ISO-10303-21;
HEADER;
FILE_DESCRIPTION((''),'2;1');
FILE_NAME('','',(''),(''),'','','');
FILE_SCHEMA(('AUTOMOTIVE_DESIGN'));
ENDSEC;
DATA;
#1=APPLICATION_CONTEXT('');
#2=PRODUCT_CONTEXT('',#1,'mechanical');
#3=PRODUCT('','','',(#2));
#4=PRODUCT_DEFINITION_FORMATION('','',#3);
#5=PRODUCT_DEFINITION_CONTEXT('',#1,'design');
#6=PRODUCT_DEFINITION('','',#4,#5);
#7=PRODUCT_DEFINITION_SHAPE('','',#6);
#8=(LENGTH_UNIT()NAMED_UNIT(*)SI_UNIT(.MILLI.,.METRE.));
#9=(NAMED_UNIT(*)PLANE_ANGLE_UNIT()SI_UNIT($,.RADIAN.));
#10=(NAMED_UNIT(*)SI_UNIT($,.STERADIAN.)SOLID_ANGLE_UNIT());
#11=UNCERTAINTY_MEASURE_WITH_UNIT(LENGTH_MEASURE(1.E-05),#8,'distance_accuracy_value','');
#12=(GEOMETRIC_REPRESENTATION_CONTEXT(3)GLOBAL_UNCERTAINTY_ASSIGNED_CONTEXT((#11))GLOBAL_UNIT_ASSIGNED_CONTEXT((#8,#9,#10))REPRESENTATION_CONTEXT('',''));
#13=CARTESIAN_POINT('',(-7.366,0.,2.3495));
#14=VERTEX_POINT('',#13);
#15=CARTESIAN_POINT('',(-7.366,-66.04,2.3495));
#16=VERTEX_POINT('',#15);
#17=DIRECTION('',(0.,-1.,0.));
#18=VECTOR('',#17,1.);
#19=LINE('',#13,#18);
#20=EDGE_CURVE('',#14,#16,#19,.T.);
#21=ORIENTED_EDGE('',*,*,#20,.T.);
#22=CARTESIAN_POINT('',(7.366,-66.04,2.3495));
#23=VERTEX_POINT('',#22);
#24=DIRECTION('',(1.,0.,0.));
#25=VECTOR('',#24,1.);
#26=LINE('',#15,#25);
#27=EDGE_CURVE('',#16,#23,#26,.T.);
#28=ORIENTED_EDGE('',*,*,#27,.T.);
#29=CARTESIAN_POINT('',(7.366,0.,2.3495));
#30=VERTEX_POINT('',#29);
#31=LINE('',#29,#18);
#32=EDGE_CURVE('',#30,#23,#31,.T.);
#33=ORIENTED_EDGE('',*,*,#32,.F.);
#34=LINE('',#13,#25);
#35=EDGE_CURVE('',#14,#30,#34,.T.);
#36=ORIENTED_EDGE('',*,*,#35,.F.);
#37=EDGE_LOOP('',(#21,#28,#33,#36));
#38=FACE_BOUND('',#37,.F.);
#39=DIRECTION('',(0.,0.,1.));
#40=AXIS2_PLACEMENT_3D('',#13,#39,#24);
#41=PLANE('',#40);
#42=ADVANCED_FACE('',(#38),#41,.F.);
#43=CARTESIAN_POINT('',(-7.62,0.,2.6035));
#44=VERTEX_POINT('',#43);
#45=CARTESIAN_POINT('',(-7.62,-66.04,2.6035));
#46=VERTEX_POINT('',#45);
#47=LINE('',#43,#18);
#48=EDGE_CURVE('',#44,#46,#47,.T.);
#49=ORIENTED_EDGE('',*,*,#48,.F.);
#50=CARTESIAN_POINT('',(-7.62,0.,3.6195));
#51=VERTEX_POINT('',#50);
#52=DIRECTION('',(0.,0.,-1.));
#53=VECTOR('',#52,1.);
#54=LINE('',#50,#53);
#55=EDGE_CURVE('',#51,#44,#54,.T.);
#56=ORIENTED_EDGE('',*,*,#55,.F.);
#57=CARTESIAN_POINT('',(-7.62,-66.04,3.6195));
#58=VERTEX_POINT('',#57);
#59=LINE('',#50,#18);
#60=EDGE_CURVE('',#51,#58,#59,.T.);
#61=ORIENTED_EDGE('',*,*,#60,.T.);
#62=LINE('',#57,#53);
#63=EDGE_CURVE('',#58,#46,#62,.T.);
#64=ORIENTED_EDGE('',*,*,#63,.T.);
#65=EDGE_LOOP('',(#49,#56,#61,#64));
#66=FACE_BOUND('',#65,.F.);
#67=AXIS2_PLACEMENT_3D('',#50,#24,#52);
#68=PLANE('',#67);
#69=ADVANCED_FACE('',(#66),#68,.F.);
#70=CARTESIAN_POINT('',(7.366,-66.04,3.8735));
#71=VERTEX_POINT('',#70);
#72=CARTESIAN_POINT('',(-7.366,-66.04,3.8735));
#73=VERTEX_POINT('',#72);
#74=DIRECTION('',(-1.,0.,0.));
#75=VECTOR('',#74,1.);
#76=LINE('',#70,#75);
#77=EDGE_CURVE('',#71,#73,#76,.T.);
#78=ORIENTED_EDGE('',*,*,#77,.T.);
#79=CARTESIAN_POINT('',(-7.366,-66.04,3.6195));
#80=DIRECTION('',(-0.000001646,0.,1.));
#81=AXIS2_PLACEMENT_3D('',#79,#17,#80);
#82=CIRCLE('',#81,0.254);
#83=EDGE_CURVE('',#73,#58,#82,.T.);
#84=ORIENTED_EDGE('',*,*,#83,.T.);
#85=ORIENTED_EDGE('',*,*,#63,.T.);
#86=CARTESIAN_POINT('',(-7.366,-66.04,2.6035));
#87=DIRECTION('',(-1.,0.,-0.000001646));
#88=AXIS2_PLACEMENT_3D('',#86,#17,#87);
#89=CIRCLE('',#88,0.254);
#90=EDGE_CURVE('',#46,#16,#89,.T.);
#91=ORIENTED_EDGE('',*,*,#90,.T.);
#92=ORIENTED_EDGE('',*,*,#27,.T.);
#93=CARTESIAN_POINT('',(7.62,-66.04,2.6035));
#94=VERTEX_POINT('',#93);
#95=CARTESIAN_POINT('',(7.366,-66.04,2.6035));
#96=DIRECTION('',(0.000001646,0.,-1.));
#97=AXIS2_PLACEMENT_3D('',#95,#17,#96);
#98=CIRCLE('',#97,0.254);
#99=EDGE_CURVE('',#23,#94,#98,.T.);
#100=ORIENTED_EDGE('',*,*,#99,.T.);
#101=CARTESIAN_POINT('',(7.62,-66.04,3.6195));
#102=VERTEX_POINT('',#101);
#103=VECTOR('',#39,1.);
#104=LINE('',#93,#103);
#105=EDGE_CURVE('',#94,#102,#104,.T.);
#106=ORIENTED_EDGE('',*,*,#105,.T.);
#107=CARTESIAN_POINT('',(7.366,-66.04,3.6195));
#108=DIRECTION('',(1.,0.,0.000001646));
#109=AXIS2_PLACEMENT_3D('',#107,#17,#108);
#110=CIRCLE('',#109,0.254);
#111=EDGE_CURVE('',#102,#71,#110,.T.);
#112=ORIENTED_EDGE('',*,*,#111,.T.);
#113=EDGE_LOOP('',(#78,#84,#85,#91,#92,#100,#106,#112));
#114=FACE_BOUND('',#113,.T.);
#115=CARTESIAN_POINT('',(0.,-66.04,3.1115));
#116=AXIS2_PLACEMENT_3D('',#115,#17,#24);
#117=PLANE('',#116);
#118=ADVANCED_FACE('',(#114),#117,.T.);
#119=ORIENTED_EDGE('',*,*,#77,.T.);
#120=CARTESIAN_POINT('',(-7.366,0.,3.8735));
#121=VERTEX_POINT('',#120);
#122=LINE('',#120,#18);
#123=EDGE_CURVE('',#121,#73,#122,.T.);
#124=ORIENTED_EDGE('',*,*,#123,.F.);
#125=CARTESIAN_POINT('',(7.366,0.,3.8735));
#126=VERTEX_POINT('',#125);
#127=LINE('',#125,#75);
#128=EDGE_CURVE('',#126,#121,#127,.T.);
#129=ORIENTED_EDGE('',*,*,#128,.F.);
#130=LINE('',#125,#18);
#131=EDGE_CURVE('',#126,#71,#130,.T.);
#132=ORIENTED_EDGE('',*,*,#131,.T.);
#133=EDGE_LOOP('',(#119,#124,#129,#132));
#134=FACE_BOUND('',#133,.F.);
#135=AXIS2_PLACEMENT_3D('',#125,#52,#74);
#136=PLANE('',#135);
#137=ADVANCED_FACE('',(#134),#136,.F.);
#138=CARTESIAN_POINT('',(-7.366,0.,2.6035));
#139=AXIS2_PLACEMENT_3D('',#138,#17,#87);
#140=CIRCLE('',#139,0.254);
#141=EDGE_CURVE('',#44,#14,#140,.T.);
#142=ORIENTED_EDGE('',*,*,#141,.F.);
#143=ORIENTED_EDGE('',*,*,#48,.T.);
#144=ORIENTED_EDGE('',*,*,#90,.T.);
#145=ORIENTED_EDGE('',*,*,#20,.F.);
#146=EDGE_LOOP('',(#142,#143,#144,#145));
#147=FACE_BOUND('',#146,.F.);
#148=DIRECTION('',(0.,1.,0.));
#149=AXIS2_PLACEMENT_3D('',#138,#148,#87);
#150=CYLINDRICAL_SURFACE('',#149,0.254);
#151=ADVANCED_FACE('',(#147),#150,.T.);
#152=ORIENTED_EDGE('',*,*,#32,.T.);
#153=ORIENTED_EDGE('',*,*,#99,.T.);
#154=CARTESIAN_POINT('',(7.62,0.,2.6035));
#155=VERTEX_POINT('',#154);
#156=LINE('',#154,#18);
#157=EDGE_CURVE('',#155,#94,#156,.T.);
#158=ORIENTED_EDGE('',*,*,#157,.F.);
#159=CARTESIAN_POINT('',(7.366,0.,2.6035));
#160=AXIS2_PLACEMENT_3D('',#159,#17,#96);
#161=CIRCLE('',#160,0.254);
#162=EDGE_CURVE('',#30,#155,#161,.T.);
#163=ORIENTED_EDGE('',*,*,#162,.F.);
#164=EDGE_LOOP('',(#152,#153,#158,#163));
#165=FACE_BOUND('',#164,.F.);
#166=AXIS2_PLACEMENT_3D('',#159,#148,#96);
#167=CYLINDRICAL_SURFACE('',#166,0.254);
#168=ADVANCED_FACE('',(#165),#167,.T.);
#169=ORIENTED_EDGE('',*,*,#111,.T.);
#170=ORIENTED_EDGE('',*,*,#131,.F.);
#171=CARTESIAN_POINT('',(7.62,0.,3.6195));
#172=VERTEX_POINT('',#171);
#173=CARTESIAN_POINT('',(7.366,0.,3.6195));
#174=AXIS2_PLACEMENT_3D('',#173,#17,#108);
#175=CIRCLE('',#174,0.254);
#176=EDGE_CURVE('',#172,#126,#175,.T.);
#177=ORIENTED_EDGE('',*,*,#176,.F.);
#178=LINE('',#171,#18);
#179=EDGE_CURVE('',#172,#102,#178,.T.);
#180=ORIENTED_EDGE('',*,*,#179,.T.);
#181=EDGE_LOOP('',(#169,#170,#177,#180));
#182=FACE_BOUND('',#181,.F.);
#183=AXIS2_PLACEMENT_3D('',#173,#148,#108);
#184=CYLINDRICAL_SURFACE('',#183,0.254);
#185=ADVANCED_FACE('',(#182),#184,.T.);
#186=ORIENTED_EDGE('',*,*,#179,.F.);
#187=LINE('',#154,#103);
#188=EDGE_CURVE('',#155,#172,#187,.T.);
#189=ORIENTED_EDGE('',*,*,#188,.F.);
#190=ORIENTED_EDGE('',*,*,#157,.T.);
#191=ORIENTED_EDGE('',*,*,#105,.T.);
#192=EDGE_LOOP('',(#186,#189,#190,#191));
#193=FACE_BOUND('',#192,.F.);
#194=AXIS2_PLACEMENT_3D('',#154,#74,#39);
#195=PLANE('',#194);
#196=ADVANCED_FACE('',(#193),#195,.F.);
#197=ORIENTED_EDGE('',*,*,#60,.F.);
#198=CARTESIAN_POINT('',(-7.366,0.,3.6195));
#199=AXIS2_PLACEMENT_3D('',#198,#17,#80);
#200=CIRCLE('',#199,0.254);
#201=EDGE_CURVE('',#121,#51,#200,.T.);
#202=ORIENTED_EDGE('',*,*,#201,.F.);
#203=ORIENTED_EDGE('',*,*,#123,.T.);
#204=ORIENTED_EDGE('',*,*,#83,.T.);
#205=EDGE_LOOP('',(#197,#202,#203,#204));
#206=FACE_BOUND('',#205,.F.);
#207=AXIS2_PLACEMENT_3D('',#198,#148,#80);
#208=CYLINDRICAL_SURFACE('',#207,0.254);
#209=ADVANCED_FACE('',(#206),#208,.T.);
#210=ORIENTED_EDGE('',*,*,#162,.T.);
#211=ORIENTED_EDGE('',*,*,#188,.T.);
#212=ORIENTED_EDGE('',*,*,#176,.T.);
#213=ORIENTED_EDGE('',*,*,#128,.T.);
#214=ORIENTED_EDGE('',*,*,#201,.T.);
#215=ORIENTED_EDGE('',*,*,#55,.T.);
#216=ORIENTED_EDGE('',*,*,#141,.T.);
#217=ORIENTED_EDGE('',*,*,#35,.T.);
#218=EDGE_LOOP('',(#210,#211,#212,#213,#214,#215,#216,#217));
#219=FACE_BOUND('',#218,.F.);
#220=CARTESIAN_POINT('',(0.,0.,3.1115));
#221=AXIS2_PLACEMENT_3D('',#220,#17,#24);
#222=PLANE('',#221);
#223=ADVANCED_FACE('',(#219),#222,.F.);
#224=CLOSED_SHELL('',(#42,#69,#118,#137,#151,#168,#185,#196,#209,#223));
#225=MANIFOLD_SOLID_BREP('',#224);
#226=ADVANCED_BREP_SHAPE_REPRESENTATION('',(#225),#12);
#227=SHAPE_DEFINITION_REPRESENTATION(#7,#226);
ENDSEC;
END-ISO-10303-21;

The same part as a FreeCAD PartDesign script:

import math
import FreeCAD as App
import Part
import Sketcher

V = App.Vector
Q = App.Units.Quantity

doc = App.newDocument("Part")
body = doc.addObject("PartDesign::Body", "Body")

# Sketch on XZ plane
sketch1 = body.newObject("Sketcher::SketchObject", "Sketch")
sketch1.AttachmentSupport = (doc.getObject("XZ_Plane"), [""])
sketch1.MapMode = "FlatFace"
sketch1.addGeometry([
    Part.ArcOfCircle(Part.Circle(V(-7.37, 3.62, 0), V(0, 0, 1), 0.25), math.radians(90), math.radians(180)),  # 0
    Part.LineSegment(V(-7.62, 3.62, 0), V(-7.62, 2.6, 0)),  # 1
    Part.ArcOfCircle(Part.Circle(V(-7.37, 2.6, 0), V(0, 0, 1), 0.25), math.radians(-180), math.radians(-90)),  # 2
    Part.LineSegment(V(-7.37, 2.35, 0), V(7.37, 2.35, 0)),  # 3
    Part.ArcOfCircle(Part.Circle(V(7.37, 2.6, 0), V(0, 0, 1), 0.25), math.radians(-90), math.radians(0)),  # 4
    Part.LineSegment(V(7.62, 2.6, 0), V(7.62, 3.62, 0)),  # 5
    Part.ArcOfCircle(Part.Circle(V(7.37, 3.62, 0), V(0, 0, 1), 0.25), math.radians(0), math.radians(90)),  # 6
    Part.LineSegment(V(7.37, 3.87, 0), V(-7.37, 3.87, 0)),  # 7
], False)
sketch1.addConstraint([
    Sketcher.Constraint("Tangent", 0, 2, 1, 1),
    Sketcher.Constraint("Tangent", 1, 2, 2, 1),
    Sketcher.Constraint("Tangent", 2, 2, 3, 1),
    Sketcher.Constraint("Tangent", 3, 2, 4, 1),
    Sketcher.Constraint("Tangent", 4, 2, 5, 1),
    Sketcher.Constraint("Tangent", 5, 2, 6, 1),
    Sketcher.Constraint("Tangent", 6, 2, 7, 1),
    Sketcher.Constraint("Tangent", 7, 2, 0, 1),
    Sketcher.Constraint("Vertical", 1),
    Sketcher.Constraint("Horizontal", 3),
    Sketcher.Constraint("Vertical", 5),
    Sketcher.Constraint("Horizontal", 7),
    Sketcher.Constraint("Equal", 0, 2),
    Sketcher.Constraint("Equal", 2, 4),
    Sketcher.Constraint("Equal", 4, 6),
    Sketcher.Constraint("Radius", 0, Q("0.01 in")),
    Sketcher.Constraint("DistanceX", 3, 1, 3, 2, Q("0.58 in")),
    Sketcher.Constraint("DistanceY", 1, 2, 1, 1, Q("0.04 in")),
    Sketcher.Constraint("DistanceX", 0, 2, -1, 1, Q("0.3 in")),
    Sketcher.Constraint("DistanceY", -1, 1, 0, 3, Q("0.1425 in")),
])
pad1 = body.newObject("PartDesign::Pad", "Pad")
pad1.Profile = sketch1
pad1.Length = Q("2.6 in")

doc.recompute()
